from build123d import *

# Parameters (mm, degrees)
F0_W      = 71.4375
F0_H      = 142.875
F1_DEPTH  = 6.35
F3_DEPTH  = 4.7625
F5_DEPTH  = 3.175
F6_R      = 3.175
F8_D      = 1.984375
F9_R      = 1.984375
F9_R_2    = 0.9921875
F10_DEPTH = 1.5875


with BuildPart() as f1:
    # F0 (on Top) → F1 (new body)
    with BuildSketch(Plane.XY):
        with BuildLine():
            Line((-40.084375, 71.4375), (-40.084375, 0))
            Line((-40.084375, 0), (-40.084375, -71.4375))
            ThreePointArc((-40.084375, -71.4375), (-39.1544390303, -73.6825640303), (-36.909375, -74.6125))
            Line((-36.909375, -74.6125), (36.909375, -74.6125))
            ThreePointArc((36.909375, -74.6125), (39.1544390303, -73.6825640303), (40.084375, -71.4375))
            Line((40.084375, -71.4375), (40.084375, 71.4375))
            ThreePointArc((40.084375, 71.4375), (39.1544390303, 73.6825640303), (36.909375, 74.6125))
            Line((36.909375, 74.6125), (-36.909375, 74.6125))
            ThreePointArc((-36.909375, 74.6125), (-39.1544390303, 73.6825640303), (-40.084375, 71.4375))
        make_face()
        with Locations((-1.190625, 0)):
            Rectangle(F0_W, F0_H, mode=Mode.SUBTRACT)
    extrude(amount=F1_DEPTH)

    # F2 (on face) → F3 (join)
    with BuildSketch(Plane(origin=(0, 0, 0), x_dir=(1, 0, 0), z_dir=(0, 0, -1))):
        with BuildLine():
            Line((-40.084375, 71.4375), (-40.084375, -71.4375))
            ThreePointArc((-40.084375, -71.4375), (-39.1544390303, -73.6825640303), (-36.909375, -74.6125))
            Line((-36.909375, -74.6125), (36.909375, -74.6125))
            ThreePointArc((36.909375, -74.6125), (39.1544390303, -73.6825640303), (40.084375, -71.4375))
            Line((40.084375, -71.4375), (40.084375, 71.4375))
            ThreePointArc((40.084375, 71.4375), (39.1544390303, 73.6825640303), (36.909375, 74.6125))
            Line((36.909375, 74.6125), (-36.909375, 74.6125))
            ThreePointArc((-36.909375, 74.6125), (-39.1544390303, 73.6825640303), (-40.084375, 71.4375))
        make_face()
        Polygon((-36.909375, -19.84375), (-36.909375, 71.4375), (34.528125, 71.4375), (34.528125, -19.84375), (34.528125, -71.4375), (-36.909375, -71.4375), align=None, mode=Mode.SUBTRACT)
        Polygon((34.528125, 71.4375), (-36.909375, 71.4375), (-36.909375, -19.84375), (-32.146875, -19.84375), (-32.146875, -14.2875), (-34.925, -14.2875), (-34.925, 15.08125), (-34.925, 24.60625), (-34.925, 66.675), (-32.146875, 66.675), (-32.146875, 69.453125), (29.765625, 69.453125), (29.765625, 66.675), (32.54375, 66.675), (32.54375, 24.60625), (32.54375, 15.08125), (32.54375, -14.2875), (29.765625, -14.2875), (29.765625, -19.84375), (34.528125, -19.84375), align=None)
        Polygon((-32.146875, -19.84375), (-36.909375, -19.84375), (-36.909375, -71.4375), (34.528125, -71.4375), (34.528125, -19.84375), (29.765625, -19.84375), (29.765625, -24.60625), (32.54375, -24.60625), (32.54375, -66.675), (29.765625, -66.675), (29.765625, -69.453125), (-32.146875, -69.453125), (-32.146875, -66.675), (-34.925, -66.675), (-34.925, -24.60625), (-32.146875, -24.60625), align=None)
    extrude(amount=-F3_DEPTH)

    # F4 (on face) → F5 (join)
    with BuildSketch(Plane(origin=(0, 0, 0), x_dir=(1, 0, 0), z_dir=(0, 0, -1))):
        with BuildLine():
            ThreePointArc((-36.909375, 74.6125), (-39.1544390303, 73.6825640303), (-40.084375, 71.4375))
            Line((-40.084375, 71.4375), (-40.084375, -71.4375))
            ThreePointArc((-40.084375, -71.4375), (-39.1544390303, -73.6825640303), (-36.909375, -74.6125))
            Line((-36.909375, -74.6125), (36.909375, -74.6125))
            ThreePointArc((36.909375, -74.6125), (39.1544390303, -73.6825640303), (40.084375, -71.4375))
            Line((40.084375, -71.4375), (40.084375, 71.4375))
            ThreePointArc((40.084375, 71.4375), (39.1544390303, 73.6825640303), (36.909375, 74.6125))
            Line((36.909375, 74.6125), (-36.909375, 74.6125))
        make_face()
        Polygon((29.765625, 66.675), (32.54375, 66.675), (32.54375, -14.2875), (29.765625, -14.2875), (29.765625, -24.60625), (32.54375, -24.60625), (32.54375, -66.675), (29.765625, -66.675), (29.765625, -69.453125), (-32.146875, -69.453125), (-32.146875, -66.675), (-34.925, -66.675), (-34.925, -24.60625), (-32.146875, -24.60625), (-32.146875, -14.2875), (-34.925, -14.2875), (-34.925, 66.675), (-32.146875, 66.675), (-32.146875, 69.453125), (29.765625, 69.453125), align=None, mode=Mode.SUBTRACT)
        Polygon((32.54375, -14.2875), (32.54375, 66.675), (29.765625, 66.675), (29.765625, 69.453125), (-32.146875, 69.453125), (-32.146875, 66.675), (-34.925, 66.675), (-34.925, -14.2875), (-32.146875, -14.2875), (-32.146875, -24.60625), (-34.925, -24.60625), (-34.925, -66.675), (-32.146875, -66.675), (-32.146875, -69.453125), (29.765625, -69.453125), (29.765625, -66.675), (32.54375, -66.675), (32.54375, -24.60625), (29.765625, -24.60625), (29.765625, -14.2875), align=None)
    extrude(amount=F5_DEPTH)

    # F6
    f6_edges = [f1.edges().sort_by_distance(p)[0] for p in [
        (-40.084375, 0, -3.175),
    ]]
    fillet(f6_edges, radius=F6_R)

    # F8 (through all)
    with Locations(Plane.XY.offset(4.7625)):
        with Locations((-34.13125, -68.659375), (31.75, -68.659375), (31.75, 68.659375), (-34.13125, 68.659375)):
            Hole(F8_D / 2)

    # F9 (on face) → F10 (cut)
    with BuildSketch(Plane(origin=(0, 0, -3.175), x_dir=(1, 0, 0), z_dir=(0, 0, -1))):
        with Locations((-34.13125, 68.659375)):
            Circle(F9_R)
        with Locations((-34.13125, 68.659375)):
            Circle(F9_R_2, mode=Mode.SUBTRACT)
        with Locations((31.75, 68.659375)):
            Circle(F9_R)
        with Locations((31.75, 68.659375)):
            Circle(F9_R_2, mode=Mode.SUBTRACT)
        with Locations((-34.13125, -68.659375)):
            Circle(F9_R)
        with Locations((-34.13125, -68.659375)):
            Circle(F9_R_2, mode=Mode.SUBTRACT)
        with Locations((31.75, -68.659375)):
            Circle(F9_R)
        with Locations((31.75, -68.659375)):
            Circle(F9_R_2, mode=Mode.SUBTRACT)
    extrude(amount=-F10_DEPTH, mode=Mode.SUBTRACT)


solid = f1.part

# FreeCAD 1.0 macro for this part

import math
import FreeCAD as App
import Part
import Sketcher
from FreeCAD import Vector
Q = App.Units.Quantity


def edges_at(feature, points):
    """Names of the edges that pass closest to the given points."""
    edges = feature.Shape.Edges
    near = lambda p: min(range(len(edges)), key=lambda i: edges[i].distToShape(Part.Vertex(*p))[0])
    return sorted({f"Edge{near(p) + 1}" for p in points})


def add_polygon(sketch, points):
    """Adds a closed chain of lines whose ends are joined by coincident constraints."""
    first, n = sketch.GeometryCount, len(points)
    for a, b in zip(points, points[1:] + points[:1]):
        sketch.addGeometry(Part.LineSegment(App.Vector(*a, 0), App.Vector(*b, 0)), False)
    for i in range(n):
        sketch.addConstraint(Sketcher.Constraint("Coincident", first + i, 2, first + (i + 1) % n, 1))

doc = App.newDocument("Part")
body = doc.addObject("PartDesign::Body", "Body")

sketch1 = body.newObject("Sketcher::SketchObject", "Sketch")
sketch1.AttachmentSupport = (doc.getObject("XY_Plane"), [""])
sketch1.MapMode = "FlatFace"
sketch1.addGeometry(Part.LineSegment(Vector(-40.1, 71.4, 0), Vector(-40.1, -71.4, 0)), False)
sketch1.addGeometry(Part.ArcOfCircle(Part.Circle(Vector(-36.9, -71.4, 0), Vector(0, 0, 1), 3.2), math.radians(180), math.radians(270)), False)
sketch1.addGeometry(Part.LineSegment(Vector(-36.9, -74.6, 0), Vector(36.9, -74.6, 0)), False)
sketch1.addGeometry(Part.ArcOfCircle(Part.Circle(Vector(36.9, -71.4, 0), Vector(0, 0, 1), 3.2), math.radians(-90), math.radians(0)), False)
sketch1.addGeometry(Part.LineSegment(Vector(40.1, -71.4, 0), Vector(40.1, 71.4, 0)), False)
sketch1.addGeometry(Part.ArcOfCircle(Part.Circle(Vector(36.9, 71.4, 0), Vector(0, 0, 1), 3.2), math.radians(0), math.radians(90)), False)
sketch1.addGeometry(Part.LineSegment(Vector(36.9, 74.6, 0), Vector(-36.9, 74.6, 0)), False)
sketch1.addGeometry(Part.ArcOfCircle(Part.Circle(Vector(-36.9, 71.4, 0), Vector(0, 0, 1), 3.2), math.radians(90), math.radians(180)), False)
add_polygon(sketch1, [(34.5, -71.4), (-36.9, -71.4), (-36.9, 71.4), (34.5, 71.4)])
sketch1.addConstraint([
    Sketcher.Constraint("Tangent", 0, 2, 1, 1),
    Sketcher.Constraint("Tangent", 1, 2, 2, 1),
    Sketcher.Constraint("Tangent", 2, 2, 3, 1),
    Sketcher.Constraint("Tangent", 3, 2, 4, 1),
    Sketcher.Constraint("Tangent", 4, 2, 5, 1),
    Sketcher.Constraint("Tangent", 5, 2, 6, 1),
    Sketcher.Constraint("Tangent", 6, 2, 7, 1),
    Sketcher.Constraint("Tangent", 7, 2, 0, 1),
    Sketcher.Constraint("Vertical", 0),
    Sketcher.Constraint("Horizontal", 2),
    Sketcher.Constraint("Vertical", 4),
    Sketcher.Constraint("Horizontal", 6),
    Sketcher.Constraint("Horizontal", 8),
    Sketcher.Constraint("Vertical", 9),
    Sketcher.Constraint("Horizontal", 10),
    Sketcher.Constraint("Vertical", 11),
    Sketcher.Constraint("Coincident", 8, 2, 1, 3),
    Sketcher.Constraint("Coincident", 9, 2, 7, 3),
    Sketcher.Constraint("Equal", 1, 3),
    Sketcher.Constraint("Equal", 3, 5),
    Sketcher.Constraint("Symmetric", 1, 3, 5, 3, -1, 1),
    Sketcher.Constraint("Radius", 1, Q("0.125 in")),
    Sketcher.Constraint("DistanceX", 2, 1, 2, 2, Q("2.90625 in")),
    Sketcher.Constraint("DistanceX", 8, 2, 8, 1, Q("2.8125 in")),
    Sketcher.Constraint("DistanceY", 0, 2, 0, 1, Q("5.625 in")),
])
pad1 = body.newObject("PartDesign::Pad", "Pad")
pad1.Profile = sketch1
pad1.Length = Q("0.25 in")

sketch2 = body.newObject("Sketcher::SketchObject", "Sketch001")
sketch2.AttachmentSupport = (doc.getObject("XY_Plane"), [""])
sketch2.MapMode = "FlatFace"
sketch2.addGeometry(Part.LineSegment(Vector(-40.1, -71.4, 0), Vector(-40.1, 71.4, 0)), False)
sketch2.addGeometry(Part.ArcOfCircle(Part.Circle(Vector(-36.9, 71.4, 0), Vector(0, 0, 1), 3.2), math.radians(90), math.radians(180)), False)
sketch2.addGeometry(Part.LineSegment(Vector(-36.9, 74.6, 0), Vector(36.9, 74.6, 0)), False)
sketch2.addGeometry(Part.ArcOfCircle(Part.Circle(Vector(36.9, 71.4, 0), Vector(0, 0, 1), 3.2), math.radians(0), math.radians(90)), False)
sketch2.addGeometry(Part.LineSegment(Vector(40.1, 71.4, 0), Vector(40.1, -71.4, 0)), False)
sketch2.addGeometry(Part.ArcOfCircle(Part.Circle(Vector(36.9, -71.4, 0), Vector(0, 0, 1), 3.2), math.radians(-90), math.radians(0)), False)
sketch2.addGeometry(Part.LineSegment(Vector(36.9, -74.6, 0), Vector(-36.9, -74.6, 0)), False)
sketch2.addGeometry(Part.ArcOfCircle(Part.Circle(Vector(-36.9, -71.4, 0), Vector(0, 0, 1), 3.2), math.radians(180), math.radians(270)), False)
add_polygon(sketch2, [(-32.1, 24.6), (-32.1, 14.3), (-34.9, 14.3), (-34.9, -66.7), (-32.1, -66.7), (-32.1, -69.5), (29.8, -69.5), (29.8, -66.7), (32.5, -66.7), (32.5, 14.3), (29.8, 14.3), (29.8, 24.6), (32.5, 24.6), (32.5, 66.7), (29.8, 66.7), (29.8, 69.5), (-32.1, 69.5), (-32.1, 66.7), (-34.9, 66.7), (-34.9, 24.6)])
sketch2.addConstraint([
    Sketcher.Constraint("Tangent", 0, 2, 1, 2),
    Sketcher.Constraint("Tangent", 1, 1, 2, 1),
    Sketcher.Constraint("Tangent", 2, 2, 3, 2),
    Sketcher.Constraint("Tangent", 3, 1, 4, 1),
    Sketcher.Constraint("Tangent", 4, 2, 5, 2),
    Sketcher.Constraint("Tangent", 5, 1, 6, 1),
    Sketcher.Constraint("Tangent", 6, 2, 7, 2),
    Sketcher.Constraint("Tangent", 7, 1, 0, 1),
    Sketcher.Constraint("Vertical", 0),
    Sketcher.Constraint("Horizontal", 2),
    Sketcher.Constraint("Vertical", 4),
    Sketcher.Constraint("Horizontal", 6),
    Sketcher.Constraint("Vertical", 8),
    Sketcher.Constraint("Horizontal", 9),
    Sketcher.Constraint("Vertical", 10),
    Sketcher.Constraint("Horizontal", 11),
    Sketcher.Constraint("Vertical", 12),
    Sketcher.Constraint("Horizontal", 13),
    Sketcher.Constraint("Vertical", 14),
    Sketcher.Constraint("Horizontal", 15),
    Sketcher.Constraint("Vertical", 16),
    Sketcher.Constraint("Horizontal", 17),
    Sketcher.Constraint("Vertical", 18),
    Sketcher.Constraint("Horizontal", 19),
    Sketcher.Constraint("Vertical", 20),
    Sketcher.Constraint("Horizontal", 21),
    Sketcher.Constraint("Vertical", 22),
    Sketcher.Constraint("Horizontal", 23),
    Sketcher.Constraint("Vertical", 24),
    Sketcher.Constraint("Horizontal", 25),
    Sketcher.Constraint("Vertical", 26),
    Sketcher.Constraint("Horizontal", 27),
    Sketcher.Constraint("Equal", 1, 3),
    Sketcher.Constraint("Equal", 3, 5),
    Sketcher.Constraint("Equal", 5, 7),
    Sketcher.Constraint("Symmetric", 1, 3, 5, 3, -1, 1),
    Sketcher.Constraint("Symmetric", 15, 2, 20, 2, -1),
    Sketcher.Constraint("Symmetric", 13, 2, 22, 2, -1),
    Sketcher.Constraint("Symmetric", 11, 2, 24, 2, -1),
    Sketcher.Constraint("Horizontal", 11, 2, 14, 2),
    Sketcher.Constraint("Horizontal", 9, 2, 16, 2),
    Sketcher.Constraint("Horizontal", 19, 2, 26, 2),
    Sketcher.Constraint("Vertical", 8, 2, 11, 2),
    Sketcher.Constraint("Vertical", 14, 2, 17, 2),
    Sketcher.Constraint("Vertical", 10, 2, 25, 2),
    Sketcher.Constraint("Equal", 11, 15),
    Sketcher.Constraint("Equal", 27, 12),
    Sketcher.Constraint("Radius", 1, Q("0.125 in")),
    Sketcher.Constraint("DistanceX", 2, 1, 2, 2, Q("2.90625 in")),
    Sketcher.Constraint("DistanceX", 9, 2, 9, 1, Q("0.109375 in")),
    Sketcher.Constraint("DistanceX", 13, 1, 13, 2, Q("2.4375 in")),
    Sketcher.Constraint("DistanceY", 0, 1, 0, 2, Q("5.625 in")),
    Sketcher.Constraint("DistanceY", 8, 2, 8, 1, Q("0.40625 in")),
    Sketcher.Constraint("DistanceY", 10, 2, 10, 1, Q("3.1875 in")),
    Sketcher.Constraint("DistanceY", 20, 1, 20, 2, Q("1.65625 in")),
    Sketcher.Constraint("DistanceX", 8, 2, -1, 1, Q("1.265625 in")),
])
pad2 = body.newObject("PartDesign::Pad", "Pad001")
pad2.Profile = sketch2
pad2.Length = Q("0.1875 in")

sketch3 = body.newObject("Sketcher::SketchObject", "Sketch002")
sketch3.AttachmentSupport = (doc.getObject("XY_Plane"), [""])
sketch3.MapMode = "FlatFace"
sketch3.addGeometry([
    Part.ArcOfCircle(Part.Circle(Vector(-36.9, -71.4, 0), Vector(0, 0, 1), 3.2), math.radians(180), math.radians(270)),
    Part.LineSegment(Vector(-40.1, -71.4, 0), Vector(-40.1, 71.4, 0)),
    Part.ArcOfCircle(Part.Circle(Vector(-36.9, 71.4, 0), Vector(0, 0, 1), 3.2), math.radians(90), math.radians(180)),
    Part.LineSegment(Vector(-36.9, 74.6, 0), Vector(36.9, 74.6, 0)),
    Part.ArcOfCircle(Part.Circle(Vector(36.9, 71.4, 0), Vector(0, 0, 1), 3.2), math.radians(0), math.radians(90)),
    Part.LineSegment(Vector(40.1, 71.4, 0), Vector(40.1, -71.4, 0)),
    Part.ArcOfCircle(Part.Circle(Vector(36.9, -71.4, 0), Vector(0, 0, 1), 3.2), math.radians(-90), math.radians(0)),
    Part.LineSegment(Vector(36.9, -74.6, 0), Vector(-36.9, -74.6, 0)),
], False)
sketch3.addConstraint([
    Sketcher.Constraint("Tangent", 0, 1, 1, 1),
    Sketcher.Constraint("Tangent", 1, 2, 2, 2),
    Sketcher.Constraint("Tangent", 2, 1, 3, 1),
    Sketcher.Constraint("Tangent", 3, 2, 4, 2),
    Sketcher.Constraint("Tangent", 4, 1, 5, 1),
    Sketcher.Constraint("Tangent", 5, 2, 6, 2),
    Sketcher.Constraint("Tangent", 6, 1, 7, 1),
    Sketcher.Constraint("Tangent", 7, 2, 0, 2),
    Sketcher.Constraint("Vertical", 1),
    Sketcher.Constraint("Horizontal", 3),
    Sketcher.Constraint("Vertical", 5),
    Sketcher.Constraint("Horizontal", 7),
    Sketcher.Constraint("Equal", 0, 2),
    Sketcher.Constraint("Equal", 2, 4),
    Sketcher.Constraint("Equal", 4, 6),
    Sketcher.Constraint("Symmetric", 0, 3, 4, 3, -1, 1),
    Sketcher.Constraint("Radius", 0, Q("0.125 in")),
    Sketcher.Constraint("DistanceX", 3, 1, 3, 2, Q("2.90625 in")),
    Sketcher.Constraint("DistanceY", 1, 1, 1, 2, Q("5.625 in")),
])
pad3 = body.newObject("PartDesign::Pad", "Pad002")
pad3.Profile = sketch3
pad3.Length = Q("0.125 in")
pad3.Reversed = True
doc.recompute()

fillet = body.newObject("PartDesign::Fillet", "Fillet")
fillet.Base = (pad3, edges_at(pad3, [(-40.084, 0, -3.175)]))
fillet.Radius = Q("0.125 in")

sketch4 = body.newObject("Sketcher::SketchObject", "Sketch003")
sketch4.AttachmentSupport = (doc.getObject("XY_Plane"), [""])
sketch4.MapMode = "FlatFace"
sketch4.AttachmentOffset = App.Placement(Vector(0, 0, 0.1875 * 25.4), App.Rotation())
sketch4.addGeometry([
    Part.Circle(Vector(-34.1, -68.7, 0), Vector(0, 0, 1), 1),
    Part.Circle(Vector(31.8, -68.7, 0), Vector(0, 0, 1), 1),
    Part.Circle(Vector(31.8, 68.7, 0), Vector(0, 0, 1), 1),
    Part.Circle(Vector(-34.1, 68.7, 0), Vector(0, 0, 1), 1),
], False)
sketch4.addConstraint([
    Sketcher.Constraint("Equal", 0, 1),
    Sketcher.Constraint("Equal", 1, 2),
    Sketcher.Constraint("Equal", 2, 3),
    Sketcher.Constraint("Symmetric", 1, 3, 2, 3, -1),
    Sketcher.Constraint("Symmetric", 0, 3, 3, 3, -1),
    Sketcher.Constraint("Horizontal", 0, 3, 1, 3),
    Sketcher.Constraint("Diameter", 0, Q("0.078125 in")),
    Sketcher.Constraint("DistanceX", -1, 1, 1, 3, Q("1.25 in")),
    Sketcher.Constraint("DistanceX", 0, 3, -1, 1, Q("1.34375 in")),
    Sketcher.Constraint("DistanceY", 0, 3, -1, 1, Q("2.703125 in")),
])
doc.recompute()
hole = body.newObject("PartDesign::Hole", "Hole")
hole.Profile = sketch4
hole.ThreadType = "None"
hole.Diameter = Q("0.078125 in")
hole.DepthType = "ThroughAll"

sketch5 = body.newObject("Sketcher::SketchObject", "Sketch004")
sketch5.AttachmentSupport = (doc.getObject("XY_Plane"), [""])
sketch5.MapMode = "FlatFace"
sketch5.AttachmentOffset = App.Placement(Vector(0, 0, -0.125 * 25.4), App.Rotation())
sketch5.addGeometry([
    Part.Circle(Vector(-34.1, -68.7, 0), Vector(0, 0, 1), 2),
    Part.Circle(Vector(-34.1, -68.7, 0), Vector(0, 0, 1), 1),
    Part.Circle(Vector(31.8, -68.7, 0), Vector(0, 0, 1), 2),
    Part.Circle(Vector(31.8, -68.7, 0), Vector(0, 0, 1), 1),
    Part.Circle(Vector(-34.1, 68.7, 0), Vector(0, 0, 1), 2),
    Part.Circle(Vector(-34.1, 68.7, 0), Vector(0, 0, 1), 1),
    Part.Circle(Vector(31.8, 68.7, 0), Vector(0, 0, 1), 2),
    Part.Circle(Vector(31.8, 68.7, 0), Vector(0, 0, 1), 1),
], False)
sketch5.addConstraint([
    Sketcher.Constraint("Coincident", 1, 3, 0, 3),
    Sketcher.Constraint("Coincident", 3, 3, 2, 3),
    Sketcher.Constraint("Coincident", 5, 3, 4, 3),
    Sketcher.Constraint("Coincident", 7, 3, 6, 3),
    Sketcher.Constraint("Equal", 0, 2),
    Sketcher.Constraint("Equal", 1, 3),
    Sketcher.Constraint("Equal", 2, 4),
    Sketcher.Constraint("Equal", 3, 5),
    Sketcher.Constraint("Equal", 4, 6),
    Sketcher.Constraint("Equal", 5, 7),
    Sketcher.Constraint("Symmetric", 0, 3, 4, 3, -1),
    Sketcher.Constraint("Symmetric", 2, 3, 6, 3, -1),
    Sketcher.Constraint("Horizontal", 1, 3, 2, 3),
    Sketcher.Constraint("Diameter", 0, Q("0.15625 in")),
    Sketcher.Constraint("Diameter", 1, Q("0.078125 in")),
    Sketcher.Constraint("DistanceX", -1, 1, 2, 3, Q("1.25 in")),
    Sketcher.Constraint("DistanceX", 0, 3, -1, 1, Q("1.34375 in")),
    Sketcher.Constraint("DistanceY", 0, 3, -1, 1, Q("2.703125 in")),
])
pocket1 = body.newObject("PartDesign::Pocket", "Pocket")
pocket1.Profile = sketch5
pocket1.Length = Q("0.0625 in")
pocket1.Reversed = True

doc.recompute()
